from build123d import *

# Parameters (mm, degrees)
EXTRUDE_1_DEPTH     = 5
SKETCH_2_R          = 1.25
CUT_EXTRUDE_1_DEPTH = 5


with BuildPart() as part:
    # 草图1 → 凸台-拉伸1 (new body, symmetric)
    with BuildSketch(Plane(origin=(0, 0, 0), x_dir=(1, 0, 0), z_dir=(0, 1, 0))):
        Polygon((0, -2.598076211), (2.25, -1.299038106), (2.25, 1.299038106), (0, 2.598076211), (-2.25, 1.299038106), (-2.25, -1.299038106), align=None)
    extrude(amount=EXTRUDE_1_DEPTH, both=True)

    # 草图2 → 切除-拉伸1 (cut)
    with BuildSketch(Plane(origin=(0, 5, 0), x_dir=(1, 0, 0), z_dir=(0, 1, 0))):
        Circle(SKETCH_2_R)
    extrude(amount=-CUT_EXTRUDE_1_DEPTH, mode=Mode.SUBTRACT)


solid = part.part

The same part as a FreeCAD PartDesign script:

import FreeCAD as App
import Part
import Sketcher
Q = App.Units.Quantity


def add_polygon(sketch, points):
    """Adds a closed chain of lines whose ends are joined by coincident constraints."""
    first, n = sketch.GeometryCount, len(points)
    for a, b in zip(points, points[1:] + points[:1]):
        sketch.addGeometry(Part.LineSegment(App.Vector(*a, 0), App.Vector(*b, 0)), False)
    for i in range(n):
        sketch.addConstraint(Sketcher.Constraint("Coincident", first + i, 2, first + (i + 1) % n, 1))

doc = App.newDocument("Part")
body = doc.addObject("PartDesign::Body", "Body")

# Sketch on XZ plane
sketch1 = body.newObject("Sketcher::SketchObject", "Sketch")
sketch1.AttachmentSupport = (doc.getObject("XZ_Plane"), [""])
sketch1.MapMode = "FlatFace"
add_polygon(sketch1, [(0, 2.6), (2.2, 1.3), (2.2, -1.3), (0, -2.6), (-2.2, -1.3), (-2.2, 1.3)])  # lines 0-5
sketch1.addConstraint([
    Sketcher.Constraint("Vertical", 1),
    Sketcher.Constraint("Vertical", 4),
    Sketcher.Constraint("Symmetric", 0, 2, 3, 2, -1, 1),
    Sketcher.Constraint("Symmetric", 2, 2, 5, 2, -1, 1),
    Sketcher.Constraint("PointOnObject", 2, 2, -2),
    Sketcher.Constraint("Parallel", 2, 5),
    Sketcher.Constraint("Horizontal", 1, 2, 3, 2),
    Sketcher.Constraint("Angle", 0, Q("-30 deg")),
    Sketcher.Constraint("DistanceX", 3, 2, 1, 2, Q("4.5 mm")),
    Sketcher.Constraint("DistanceY", 1, 2, 1, 1, Q("2.598076 mm")),
])
pad1 = body.newObject("PartDesign::Pad", "Pad")
pad1.Profile = sketch1
pad1.Length = 10
pad1.Midplane = True

# Sketch on XZ plane
sketch2 = body.newObject("Sketcher::SketchObject", "Sketch001")
sketch2.AttachmentSupport = (doc.getObject("XZ_Plane"), [""])
sketch2.MapMode = "FlatFace"
sketch2.AttachmentOffset = App.Placement(App.Vector(0, 0, -5), App.Rotation())
sketch2.addGeometry(Part.Circle(App.Vector(0, 0, 0), App.Vector(0, 0, 1), 1.2), False)
sketch2.addConstraint([
    Sketcher.Constraint("Coincident", 0, 3, -1, 1),
    Sketcher.Constraint("Diameter", 0, Q("2.5 mm")),
])
pocket1 = body.newObject("PartDesign::Pocket", "Pocket")
pocket1.Profile = sketch2
pocket1.Length = 5
pocket1.Reversed = True

doc.recompute()
